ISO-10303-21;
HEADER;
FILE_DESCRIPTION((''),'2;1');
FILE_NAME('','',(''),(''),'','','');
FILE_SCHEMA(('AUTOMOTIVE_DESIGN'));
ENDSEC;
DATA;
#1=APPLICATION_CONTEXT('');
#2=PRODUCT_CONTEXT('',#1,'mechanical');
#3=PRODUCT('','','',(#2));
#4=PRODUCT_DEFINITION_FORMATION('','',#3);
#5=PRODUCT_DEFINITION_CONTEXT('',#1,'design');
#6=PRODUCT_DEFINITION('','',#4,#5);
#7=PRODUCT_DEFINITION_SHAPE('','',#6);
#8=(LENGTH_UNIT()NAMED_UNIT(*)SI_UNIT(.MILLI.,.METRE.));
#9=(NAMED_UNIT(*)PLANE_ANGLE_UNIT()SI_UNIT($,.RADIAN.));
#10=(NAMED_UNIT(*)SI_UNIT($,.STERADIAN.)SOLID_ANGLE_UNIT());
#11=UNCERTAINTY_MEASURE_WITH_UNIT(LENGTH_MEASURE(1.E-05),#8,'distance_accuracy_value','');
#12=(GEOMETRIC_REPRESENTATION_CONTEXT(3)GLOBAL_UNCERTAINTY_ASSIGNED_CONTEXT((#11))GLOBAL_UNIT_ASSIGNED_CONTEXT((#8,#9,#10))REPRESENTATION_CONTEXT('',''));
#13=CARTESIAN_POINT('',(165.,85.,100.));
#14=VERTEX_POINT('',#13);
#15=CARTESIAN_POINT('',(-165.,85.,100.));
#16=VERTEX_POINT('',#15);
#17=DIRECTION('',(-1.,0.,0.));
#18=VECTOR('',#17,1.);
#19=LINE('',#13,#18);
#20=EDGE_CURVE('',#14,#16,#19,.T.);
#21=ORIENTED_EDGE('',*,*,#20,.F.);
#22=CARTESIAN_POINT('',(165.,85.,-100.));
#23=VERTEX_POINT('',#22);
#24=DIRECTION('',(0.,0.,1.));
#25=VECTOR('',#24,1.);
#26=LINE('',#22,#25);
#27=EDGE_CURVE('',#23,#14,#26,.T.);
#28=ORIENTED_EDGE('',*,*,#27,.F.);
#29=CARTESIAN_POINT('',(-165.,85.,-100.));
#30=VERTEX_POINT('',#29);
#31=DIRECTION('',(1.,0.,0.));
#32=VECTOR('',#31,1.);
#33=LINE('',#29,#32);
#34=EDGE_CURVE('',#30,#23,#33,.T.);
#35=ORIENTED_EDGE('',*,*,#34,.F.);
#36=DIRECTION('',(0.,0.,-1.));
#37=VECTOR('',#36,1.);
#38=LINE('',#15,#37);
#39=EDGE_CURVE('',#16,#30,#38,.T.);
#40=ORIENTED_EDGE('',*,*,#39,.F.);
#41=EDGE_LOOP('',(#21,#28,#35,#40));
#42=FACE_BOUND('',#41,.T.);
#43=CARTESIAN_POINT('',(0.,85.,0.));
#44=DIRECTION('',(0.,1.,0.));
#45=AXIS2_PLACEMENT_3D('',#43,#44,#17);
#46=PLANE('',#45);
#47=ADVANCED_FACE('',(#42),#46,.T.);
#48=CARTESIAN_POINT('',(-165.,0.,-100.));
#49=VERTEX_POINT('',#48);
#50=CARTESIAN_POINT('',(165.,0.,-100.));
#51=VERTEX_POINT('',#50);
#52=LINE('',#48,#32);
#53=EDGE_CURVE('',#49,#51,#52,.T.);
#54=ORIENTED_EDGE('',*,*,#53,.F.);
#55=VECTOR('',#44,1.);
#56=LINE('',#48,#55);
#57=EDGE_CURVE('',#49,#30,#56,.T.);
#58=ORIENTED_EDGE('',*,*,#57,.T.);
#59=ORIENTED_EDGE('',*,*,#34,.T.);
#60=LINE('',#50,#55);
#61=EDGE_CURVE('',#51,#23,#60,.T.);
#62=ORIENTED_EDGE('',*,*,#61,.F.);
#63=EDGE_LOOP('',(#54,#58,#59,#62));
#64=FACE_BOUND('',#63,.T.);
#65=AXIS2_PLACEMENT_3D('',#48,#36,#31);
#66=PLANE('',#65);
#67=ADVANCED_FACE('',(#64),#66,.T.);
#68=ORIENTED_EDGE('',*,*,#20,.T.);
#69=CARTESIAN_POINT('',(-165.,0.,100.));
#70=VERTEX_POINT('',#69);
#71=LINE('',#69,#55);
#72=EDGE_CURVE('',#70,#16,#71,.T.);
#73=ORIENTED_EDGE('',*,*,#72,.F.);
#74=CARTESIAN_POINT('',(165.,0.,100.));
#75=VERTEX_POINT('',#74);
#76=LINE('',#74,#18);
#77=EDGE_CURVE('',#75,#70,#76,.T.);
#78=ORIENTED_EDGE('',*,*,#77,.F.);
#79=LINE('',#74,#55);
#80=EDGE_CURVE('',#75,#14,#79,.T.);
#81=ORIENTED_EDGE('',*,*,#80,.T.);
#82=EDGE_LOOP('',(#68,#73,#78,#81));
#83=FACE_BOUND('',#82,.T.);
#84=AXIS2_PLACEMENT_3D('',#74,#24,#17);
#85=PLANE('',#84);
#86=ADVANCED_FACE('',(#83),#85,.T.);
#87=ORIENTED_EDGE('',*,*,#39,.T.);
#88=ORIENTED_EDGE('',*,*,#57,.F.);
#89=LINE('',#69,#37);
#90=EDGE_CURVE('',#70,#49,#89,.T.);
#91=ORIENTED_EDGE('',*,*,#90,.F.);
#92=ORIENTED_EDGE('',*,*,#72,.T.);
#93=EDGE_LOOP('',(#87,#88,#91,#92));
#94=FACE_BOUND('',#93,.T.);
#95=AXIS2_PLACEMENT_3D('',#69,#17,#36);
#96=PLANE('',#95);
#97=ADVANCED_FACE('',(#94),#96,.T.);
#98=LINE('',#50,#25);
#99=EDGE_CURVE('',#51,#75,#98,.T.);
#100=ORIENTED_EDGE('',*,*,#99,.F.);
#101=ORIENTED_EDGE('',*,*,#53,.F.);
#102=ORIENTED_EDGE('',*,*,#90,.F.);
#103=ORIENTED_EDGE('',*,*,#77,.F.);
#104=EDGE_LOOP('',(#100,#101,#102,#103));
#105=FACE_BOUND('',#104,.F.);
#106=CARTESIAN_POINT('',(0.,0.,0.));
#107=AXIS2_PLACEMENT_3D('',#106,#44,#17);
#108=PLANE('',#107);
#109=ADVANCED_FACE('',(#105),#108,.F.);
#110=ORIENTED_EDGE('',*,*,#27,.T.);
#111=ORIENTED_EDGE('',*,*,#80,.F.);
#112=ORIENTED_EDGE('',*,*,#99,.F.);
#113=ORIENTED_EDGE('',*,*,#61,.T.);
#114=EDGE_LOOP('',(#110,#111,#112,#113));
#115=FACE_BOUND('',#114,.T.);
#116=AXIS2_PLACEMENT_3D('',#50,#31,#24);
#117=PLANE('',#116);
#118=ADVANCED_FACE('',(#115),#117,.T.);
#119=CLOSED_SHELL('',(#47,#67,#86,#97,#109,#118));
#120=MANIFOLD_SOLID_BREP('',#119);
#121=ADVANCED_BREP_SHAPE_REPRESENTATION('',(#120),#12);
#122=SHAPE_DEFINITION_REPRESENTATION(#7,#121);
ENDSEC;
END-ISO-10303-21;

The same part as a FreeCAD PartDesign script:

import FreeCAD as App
import Part
import Sketcher

doc = App.newDocument("Part")
body = doc.addObject("PartDesign::Body", "Body")

# Sketch on XZ plane
sketch1 = doc.addObject("Sketcher::SketchObject", "Sketch")
body.addObject(sketch1)
sketch1.AttachmentSupport = (doc.XZ_Plane, [""])
sketch1.MapMode = "FlatFace"
sketch1.addGeometry([
    Part.LineSegment(App.Vector(165, -100, 0), App.Vector(-165, -100, 0)),
    Part.LineSegment(App.Vector(-165, -100, 0), App.Vector(-165, 100, 0)),
    Part.LineSegment(App.Vector(-165, 100, 0), App.Vector(165, 100, 0)),
    Part.LineSegment(App.Vector(165, 100, 0), App.Vector(165, -100, 0)),
], False)
sketch1.addConstraint([
    Sketcher.Constraint("Coincident", 0, 2, 1, 1),
    Sketcher.Constraint("Coincident", 1, 2, 2, 1),
    Sketcher.Constraint("Coincident", 2, 2, 3, 1),
    Sketcher.Constraint("Coincident", 3, 2, 0, 1),
    Sketcher.Constraint("Horizontal", 0),
    Sketcher.Constraint("Vertical", 1),
    Sketcher.Constraint("Horizontal", 2),
    Sketcher.Constraint("Vertical", 3),
    Sketcher.Constraint("Symmetric", 0, 2, 2, 2, -1, 1),
    Sketcher.Constraint("DistanceX", 0, 2, 0, 1, 330.0),
    Sketcher.Constraint("DistanceY", 1, 1, 1, 2, 200.0),
])
pad1 = doc.addObject("PartDesign::Pad", "Pad")
body.addObject(pad1)
pad1.Profile = sketch1
pad1.Length = 85
pad1.Reversed = True

doc.recompute()
